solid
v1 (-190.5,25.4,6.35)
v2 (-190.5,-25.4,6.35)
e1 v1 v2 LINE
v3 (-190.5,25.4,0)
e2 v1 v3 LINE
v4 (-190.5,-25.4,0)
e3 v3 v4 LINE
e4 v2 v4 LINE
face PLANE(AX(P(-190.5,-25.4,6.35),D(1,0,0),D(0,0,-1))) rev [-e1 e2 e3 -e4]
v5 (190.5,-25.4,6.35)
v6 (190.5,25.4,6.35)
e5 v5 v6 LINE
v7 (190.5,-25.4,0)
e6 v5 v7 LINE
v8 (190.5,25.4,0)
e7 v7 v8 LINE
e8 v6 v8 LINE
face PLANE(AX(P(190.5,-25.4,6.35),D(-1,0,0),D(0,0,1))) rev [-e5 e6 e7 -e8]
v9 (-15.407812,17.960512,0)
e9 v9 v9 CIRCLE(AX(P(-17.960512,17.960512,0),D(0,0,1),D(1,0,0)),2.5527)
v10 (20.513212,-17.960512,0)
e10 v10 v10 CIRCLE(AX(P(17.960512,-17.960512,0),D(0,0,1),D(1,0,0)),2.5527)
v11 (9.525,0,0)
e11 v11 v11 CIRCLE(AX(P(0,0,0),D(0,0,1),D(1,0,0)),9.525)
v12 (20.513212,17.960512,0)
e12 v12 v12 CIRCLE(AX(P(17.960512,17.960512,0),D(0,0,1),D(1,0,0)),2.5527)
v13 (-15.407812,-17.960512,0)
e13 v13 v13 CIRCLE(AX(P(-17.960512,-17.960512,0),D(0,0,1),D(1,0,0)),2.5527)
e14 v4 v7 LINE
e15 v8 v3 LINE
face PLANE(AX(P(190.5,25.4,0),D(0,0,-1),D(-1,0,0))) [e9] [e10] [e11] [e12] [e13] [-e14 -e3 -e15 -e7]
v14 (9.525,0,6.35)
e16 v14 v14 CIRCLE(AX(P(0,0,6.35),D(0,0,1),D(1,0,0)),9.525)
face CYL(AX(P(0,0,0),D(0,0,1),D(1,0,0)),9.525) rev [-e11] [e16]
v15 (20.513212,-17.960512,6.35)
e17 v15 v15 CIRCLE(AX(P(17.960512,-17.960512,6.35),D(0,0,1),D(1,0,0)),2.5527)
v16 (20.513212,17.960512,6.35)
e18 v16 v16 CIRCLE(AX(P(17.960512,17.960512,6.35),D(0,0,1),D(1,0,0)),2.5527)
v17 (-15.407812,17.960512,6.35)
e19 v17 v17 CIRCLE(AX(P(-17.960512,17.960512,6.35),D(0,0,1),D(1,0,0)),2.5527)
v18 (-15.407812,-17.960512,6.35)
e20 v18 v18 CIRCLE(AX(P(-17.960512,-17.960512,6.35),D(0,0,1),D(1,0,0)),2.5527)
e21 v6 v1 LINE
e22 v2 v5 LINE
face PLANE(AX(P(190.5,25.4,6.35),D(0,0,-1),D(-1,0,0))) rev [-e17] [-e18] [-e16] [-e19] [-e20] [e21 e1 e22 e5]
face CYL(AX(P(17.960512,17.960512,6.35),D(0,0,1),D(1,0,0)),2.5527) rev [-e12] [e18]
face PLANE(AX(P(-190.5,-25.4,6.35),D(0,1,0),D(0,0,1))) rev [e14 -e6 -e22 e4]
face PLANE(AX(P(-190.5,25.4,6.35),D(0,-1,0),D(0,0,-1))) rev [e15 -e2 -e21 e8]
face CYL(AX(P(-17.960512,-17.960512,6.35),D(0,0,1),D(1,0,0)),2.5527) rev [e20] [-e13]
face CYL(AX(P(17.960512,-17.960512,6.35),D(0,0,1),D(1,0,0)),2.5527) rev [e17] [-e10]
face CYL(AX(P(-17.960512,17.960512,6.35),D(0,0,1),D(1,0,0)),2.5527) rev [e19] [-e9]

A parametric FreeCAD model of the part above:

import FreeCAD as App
import Part
import Sketcher
Q = App.Units.Quantity


def add_polygon(sketch, points):
    """Adds a closed chain of lines whose ends are joined by coincident constraints."""
    first, n = sketch.GeometryCount, len(points)
    for a, b in zip(points, points[1:] + points[:1]):
        sketch.addGeometry(Part.LineSegment(App.Vector(*a, 0), App.Vector(*b, 0)), False)
    for i in range(n):
        sketch.addConstraint(Sketcher.Constraint("Coincident", first + i, 2, first + (i + 1) % n, 1))

doc = App.newDocument("Part")
params = doc.addObject("Spreadsheet::Sheet", "Params")
for row, (alias, value) in enumerate([
    ("sketch1_width", "15 in"),
    ("sketch1_height", "2 in"),
    ("pad1_length", "0.25 in"),
    ("sketch2_diameter", "0.75 in"),
    ("sketch3_diameter", "0.201 in"),
    ("hole_diameter", "0.201 in"),
], start=1):
    params.set(f"A{row}", alias)
    params.set(f"B{row}", "=" + value)
    params.setAlias(f"B{row}", alias)

body = doc.addObject("PartDesign::Body", "Body")

sketch1 = body.newObject("Sketcher::SketchObject", "Sketch")
sketch1.AttachmentSupport = (doc.getObject("XY_Plane"), [""])
sketch1.MapMode = "FlatFace"
add_polygon(sketch1, [(-190, 25), (-190, -25), (190, -25), (190, 25)])
sketch1.addConstraint([
    Sketcher.Constraint("Vertical", 0),
    Sketcher.Constraint("Horizontal", 1),
    Sketcher.Constraint("Vertical", 2),
    Sketcher.Constraint("Horizontal", 3),
    Sketcher.Constraint("Symmetric", 0, 2, 2, 2, -1, 1),
    Sketcher.Constraint("DistanceX", 1, 1, 1, 2, Q("15 in")),
    Sketcher.Constraint("DistanceY", 0, 2, 0, 1, Q("2 in")),
])
sketch1.setExpression("Constraints[9]", "Params.sketch1_width")
sketch1.setExpression("Constraints[10]", "Params.sketch1_height")
pad1 = body.newObject("PartDesign::Pad", "Pad")
pad1.Profile = sketch1
pad1.setExpression("Length", "Params.pad1_length")

sketch2 = body.newObject("Sketcher::SketchObject", "Sketch001")
sketch2.AttachmentSupport = (doc.getObject("XY_Plane"), [""])
sketch2.MapMode = "FlatFace"
sketch2.AttachmentOffset = App.Placement(App.Vector(0, 0, 0.25 * 25.4), App.Rotation())
sketch2.addGeometry(Part.Circle(App.Vector(0, 0, 0), App.Vector(0, 0, 1), 10), False)
sketch2.addConstraint([
    Sketcher.Constraint("Coincident", 0, 3, -1, 1),
    Sketcher.Constraint("Diameter", 0, Q("0.75 in")),
])
sketch2.setExpression("Constraints[1]", "Params.sketch2_diameter")
pocket1 = body.newObject("PartDesign::Pocket", "Pocket")
pocket1.Profile = sketch2
pocket1.Type = "ThroughAll"

sketch3 = body.newObject("Sketcher::SketchObject", "Sketch002")
sketch3.AttachmentSupport = (doc.getObject("XY_Plane"), [""])
sketch3.MapMode = "FlatFace"
sketch3.AttachmentOffset = App.Placement(App.Vector(0, 0, 0.25 * 25.4), App.Rotation())
sketch3.addGeometry(Part.Circle(App.Vector(18, 18, 0), App.Vector(0, 0, 1), 2.6), False)
sketch3.addConstraint([
    Sketcher.Constraint("Diameter", 0, Q("0.201 in")),
    Sketcher.Constraint("DistanceX", -1, 1, 0, 3, 17.960512),
    Sketcher.Constraint("DistanceY", -1, 1, 0, 3, 17.960512),
])
sketch3.setExpression("Constraints[0]", "Params.sketch3_diameter")
doc.recompute()
hole = body.newObject("PartDesign::Hole", "Hole")
hole.Profile = sketch3
hole.ThreadType = "None"
hole.setExpression("Diameter", "Params.hole_diameter")
hole.DepthType = "ThroughAll"
doc.recompute()

polarpattern = body.newObject("PartDesign::PolarPattern", "PolarPattern")
polarpattern.Originals = [hole]
polarpattern.Axis = (doc.getObject("Z_Axis"), [""])
polarpattern.Angle = 360
polarpattern.Occurrences = 4
body.Tip = polarpattern

doc.recompute()
